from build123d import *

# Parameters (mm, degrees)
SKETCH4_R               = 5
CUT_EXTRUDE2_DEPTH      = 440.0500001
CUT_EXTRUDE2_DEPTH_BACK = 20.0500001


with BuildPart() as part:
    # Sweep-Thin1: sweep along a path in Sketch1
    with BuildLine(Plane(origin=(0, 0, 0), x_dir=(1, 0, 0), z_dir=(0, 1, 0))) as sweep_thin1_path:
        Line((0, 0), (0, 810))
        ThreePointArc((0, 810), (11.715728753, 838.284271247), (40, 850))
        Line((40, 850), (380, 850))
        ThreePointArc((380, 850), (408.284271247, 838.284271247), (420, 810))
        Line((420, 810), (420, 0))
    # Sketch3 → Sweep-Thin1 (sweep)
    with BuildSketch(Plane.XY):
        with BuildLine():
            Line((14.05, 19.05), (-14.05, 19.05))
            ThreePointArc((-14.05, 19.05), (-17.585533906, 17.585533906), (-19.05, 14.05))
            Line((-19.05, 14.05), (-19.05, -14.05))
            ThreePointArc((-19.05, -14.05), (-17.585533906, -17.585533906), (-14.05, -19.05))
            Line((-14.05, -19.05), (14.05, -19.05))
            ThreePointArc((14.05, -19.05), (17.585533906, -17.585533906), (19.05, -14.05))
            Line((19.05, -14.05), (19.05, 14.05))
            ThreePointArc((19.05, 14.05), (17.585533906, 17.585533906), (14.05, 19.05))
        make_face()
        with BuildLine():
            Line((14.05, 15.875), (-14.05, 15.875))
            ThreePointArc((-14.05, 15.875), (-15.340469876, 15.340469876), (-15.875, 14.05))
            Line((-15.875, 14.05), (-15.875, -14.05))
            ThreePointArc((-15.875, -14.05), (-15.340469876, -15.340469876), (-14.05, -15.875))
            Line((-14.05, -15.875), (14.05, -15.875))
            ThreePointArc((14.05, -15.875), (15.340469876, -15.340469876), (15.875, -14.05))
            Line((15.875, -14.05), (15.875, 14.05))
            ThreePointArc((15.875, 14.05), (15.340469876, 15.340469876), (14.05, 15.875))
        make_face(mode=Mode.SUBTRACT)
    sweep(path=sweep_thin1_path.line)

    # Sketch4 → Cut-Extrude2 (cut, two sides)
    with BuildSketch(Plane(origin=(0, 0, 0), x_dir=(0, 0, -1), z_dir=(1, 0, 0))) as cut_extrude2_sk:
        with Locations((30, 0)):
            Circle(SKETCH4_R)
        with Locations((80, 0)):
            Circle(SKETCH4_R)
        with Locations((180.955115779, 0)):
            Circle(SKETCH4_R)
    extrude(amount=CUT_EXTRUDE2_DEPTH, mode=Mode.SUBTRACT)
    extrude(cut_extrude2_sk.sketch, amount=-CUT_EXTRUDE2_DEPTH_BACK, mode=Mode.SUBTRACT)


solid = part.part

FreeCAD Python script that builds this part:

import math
import FreeCAD as App
import Part
import Sketcher
from FreeCAD import Vector
Q = App.Units.Quantity

doc = App.newDocument("Part")
body = doc.addObject("PartDesign::Body", "Body")

sketch1 = body.newObject("Sketcher::SketchObject", "Sketch")
sketch1.AttachmentSupport = (doc.getObject("XY_Plane"), [""])
sketch1.MapMode = "FlatFace"
sketch1.addGeometry(Part.LineSegment(Vector(14.1, 19.1, 0), Vector(-14.1, 19.1, 0)), False)
sketch1.addGeometry(Part.ArcOfCircle(Part.Circle(Vector(-14.1, 14.1, 0), Vector(0, 0, 1), 5), math.radians(90), math.radians(180)), False)
sketch1.addGeometry(Part.LineSegment(Vector(-19.1, 14.1, 0), Vector(-19.1, -14.1, 0)), False)
sketch1.addGeometry(Part.ArcOfCircle(Part.Circle(Vector(-14.1, -14.1, 0), Vector(0, 0, 1), 5), math.radians(180), math.radians(270)), False)
sketch1.addGeometry(Part.LineSegment(Vector(-14.1, -19.1, 0), Vector(14.1, -19.1, 0)), False)
sketch1.addGeometry(Part.ArcOfCircle(Part.Circle(Vector(14.1, -14.1, 0), Vector(0, 0, 1), 5), math.radians(-90), math.radians(0)), False)
sketch1.addGeometry(Part.LineSegment(Vector(19.1, -14.1, 0), Vector(19.1, 14.1, 0)), False)
sketch1.addGeometry(Part.ArcOfCircle(Part.Circle(Vector(14.1, 14.1, 0), Vector(0, 0, 1), 5), math.radians(0), math.radians(90)), False)
sketch1.addGeometry(Part.LineSegment(Vector(-14.1, 15.9, 0), Vector(14.1, 15.9, 0)), False)
sketch1.addGeometry(Part.ArcOfCircle(Part.Circle(Vector(14.1, 14.1, 0), Vector(0, 0, 1), 1.8), math.radians(0), math.radians(90)), False)
sketch1.addGeometry(Part.LineSegment(Vector(15.9, 14.1, 0), Vector(15.9, -14.1, 0)), False)
sketch1.addGeometry(Part.ArcOfCircle(Part.Circle(Vector(14.1, -14.1, 0), Vector(0, 0, 1), 1.8), math.radians(-90), math.radians(0)), False)
sketch1.addGeometry(Part.LineSegment(Vector(14.1, -15.9, 0), Vector(-14.1, -15.9, 0)), False)
sketch1.addGeometry(Part.ArcOfCircle(Part.Circle(Vector(-14.1, -14.1, 0), Vector(0, 0, 1), 1.8), math.radians(180), math.radians(270)), False)
sketch1.addGeometry(Part.LineSegment(Vector(-15.9, -14.1, 0), Vector(-15.9, 14.1, 0)), False)
sketch1.addGeometry(Part.ArcOfCircle(Part.Circle(Vector(-14.1, 14.1, 0), Vector(0, 0, 1), 1.8), math.radians(90), math.radians(180)), False)
sketch1.addConstraint(Sketcher.Constraint("Tangent", 0, 2, 1, 1))
sketch1.addConstraint(Sketcher.Constraint("Tangent", 1, 2, 2, 1))
sketch1.addConstraint(Sketcher.Constraint("Tangent", 2, 2, 3, 1))
sketch1.addConstraint(Sketcher.Constraint("Tangent", 3, 2, 4, 1))
sketch1.addConstraint(Sketcher.Constraint("Tangent", 4, 2, 5, 1))
sketch1.addConstraint(Sketcher.Constraint("Tangent", 5, 2, 6, 1))
sketch1.addConstraint(Sketcher.Constraint("Tangent", 6, 2, 7, 1))
sketch1.addConstraint(Sketcher.Constraint("Tangent", 7, 2, 0, 1))
sketch1.addConstraint(Sketcher.Constraint("Tangent", 8, 2, 9, 2))
sketch1.addConstraint(Sketcher.Constraint("Tangent", 9, 1, 10, 1))
sketch1.addConstraint(Sketcher.Constraint("Tangent", 10, 2, 11, 2))
sketch1.addConstraint(Sketcher.Constraint("Tangent", 11, 1, 12, 1))
sketch1.addConstraint(Sketcher.Constraint("Tangent", 12, 2, 13, 2))
sketch1.addConstraint(Sketcher.Constraint("Tangent", 13, 1, 14, 1))
sketch1.addConstraint(Sketcher.Constraint("Tangent", 14, 2, 15, 2))
sketch1.addConstraint(Sketcher.Constraint("Tangent", 15, 1, 8, 1))
sketch1.addConstraint(Sketcher.Constraint("Horizontal", 0))
sketch1.addConstraint(Sketcher.Constraint("Vertical", 2))
sketch1.addConstraint(Sketcher.Constraint("Horizontal", 4))
sketch1.addConstraint(Sketcher.Constraint("Vertical", 6))
sketch1.addConstraint(Sketcher.Constraint("Horizontal", 8))
sketch1.addConstraint(Sketcher.Constraint("Vertical", 10))
sketch1.addConstraint(Sketcher.Constraint("Horizontal", 12))
sketch1.addConstraint(Sketcher.Constraint("Vertical", 14))
sketch1.addConstraint(Sketcher.Constraint("Coincident", 9, 3, 7, 3))
sketch1.addConstraint(Sketcher.Constraint("Coincident", 11, 3, 5, 3))
sketch1.addConstraint(Sketcher.Constraint("Coincident", 13, 3, 3, 3))
sketch1.addConstraint(Sketcher.Constraint("Equal", 1, 3))
sketch1.addConstraint(Sketcher.Constraint("Equal", 3, 5))
sketch1.addConstraint(Sketcher.Constraint("Equal", 5, 7))
sketch1.addConstraint(Sketcher.Constraint("Equal", 13, 15))
sketch1.addConstraint(Sketcher.Constraint("Symmetric", 1, 3, 5, 3, -1, 1))
sketch1.addConstraint(Sketcher.Constraint("Equal", 12, 2))
sketch1.addConstraint(Sketcher.Constraint("Radius", 1, Q("5 mm")))
sketch1.addConstraint(Sketcher.Constraint("DistanceX", 0, 2, 0, 1, Q("28.1 mm")))
sketch1.addConstraint(Sketcher.Constraint("Radius", 9, Q("1.825 mm")))

sketch2 = body.newObject("Sketcher::SketchObject", "Sketch001")
sketch2.AttachmentSupport = (doc.getObject("XZ_Plane"), [""])
sketch2.MapMode = "FlatFace"
sketch2.addGeometry(Part.LineSegment(Vector(0, 0, 0), Vector(0, -810, 0)), False)
sketch2.addGeometry(Part.ArcOfCircle(Part.Circle(Vector(40, -810, 0), Vector(0, 0, 1), 40), math.radians(-180), math.radians(-90)), False)
sketch2.addGeometry(Part.LineSegment(Vector(40, -850, 0), Vector(380, -850, 0)), False)
sketch2.addGeometry(Part.ArcOfCircle(Part.Circle(Vector(380, -810, 0), Vector(0, 0, 1), 40), math.radians(-90), math.radians(0)), False)
sketch2.addGeometry(Part.LineSegment(Vector(420, -810, 0), Vector(420, 0, 0)), False)
sketch2.addConstraint(Sketcher.Constraint("Tangent", 0, 2, 1, 1))
sketch2.addConstraint(Sketcher.Constraint("Tangent", 1, 2, 2, 1))
sketch2.addConstraint(Sketcher.Constraint("Tangent", 2, 2, 3, 1))
sketch2.addConstraint(Sketcher.Constraint("Tangent", 3, 2, 4, 1))
sketch2.addConstraint(Sketcher.Constraint("Vertical", 0))
sketch2.addConstraint(Sketcher.Constraint("Horizontal", 2))
sketch2.addConstraint(Sketcher.Constraint("Vertical", 4))
sketch2.addConstraint(Sketcher.Constraint("Coincident", 0, 1, -1, 1))
sketch2.addConstraint(Sketcher.Constraint("Equal", 1, 3))
sketch2.addConstraint(Sketcher.Constraint("PointOnObject", 4, 2, -1))
sketch2.addConstraint(Sketcher.Constraint("Radius", 1, Q("40 mm")))
sketch2.addConstraint(Sketcher.Constraint("DistanceX", 2, 1, 2, 2, Q("340 mm")))
sketch2.addConstraint(Sketcher.Constraint("DistanceY", 0, 2, 0, 1, Q("810 mm")))
doc.recompute()

additivepipe = body.newObject("PartDesign::AdditivePipe", "AdditivePipe")
additivepipe.Profile = sketch1
additivepipe.Spine = (sketch2, ["Edge1", "Edge2", "Edge3", "Edge4", "Edge5"])

sketch3 = body.newObject("Sketcher::SketchObject", "Sketch002")
sketch3.AttachmentSupport = (doc.getObject("YZ_Plane"), [""])
sketch3.MapMode = "FlatFace"
sketch3.addGeometry(Part.Circle(Vector(0, -30, 0), Vector(0, 0, 1), 5), False)
sketch3.addGeometry(Part.Circle(Vector(0, -80, 0), Vector(0, 0, 1), 5), False)
sketch3.addGeometry(Part.Circle(Vector(0, -181, 0), Vector(0, 0, 1), 5), False)
sketch3.addConstraint(Sketcher.Constraint("Equal", 0, 1))
sketch3.addConstraint(Sketcher.Constraint("Equal", 1, 2))
sketch3.addConstraint(Sketcher.Constraint("PointOnObject", 0, 3, -2))
sketch3.addConstraint(Sketcher.Constraint("PointOnObject", 1, 3, -2))
sketch3.addConstraint(Sketcher.Constraint("PointOnObject", 2, 3, -2))
sketch3.addConstraint(Sketcher.Constraint("Diameter", 0, Q("10 mm")))
sketch3.addConstraint(Sketcher.Constraint("DistanceY", 0, 3, -1, 1, Q("30 mm")))
sketch3.addConstraint(Sketcher.Constraint("DistanceY", 1, 3, -1, 1, Q("80 mm")))
sketch3.addConstraint(Sketcher.Constraint("DistanceY", 2, 3, -1, 1, Q("180.955116 mm")))
pocket1 = body.newObject("PartDesign::Pocket", "Pocket")
pocket1.Profile = sketch3
pocket1.Type = "ThroughAll"
pocket1.Midplane = True

doc.recompute()
